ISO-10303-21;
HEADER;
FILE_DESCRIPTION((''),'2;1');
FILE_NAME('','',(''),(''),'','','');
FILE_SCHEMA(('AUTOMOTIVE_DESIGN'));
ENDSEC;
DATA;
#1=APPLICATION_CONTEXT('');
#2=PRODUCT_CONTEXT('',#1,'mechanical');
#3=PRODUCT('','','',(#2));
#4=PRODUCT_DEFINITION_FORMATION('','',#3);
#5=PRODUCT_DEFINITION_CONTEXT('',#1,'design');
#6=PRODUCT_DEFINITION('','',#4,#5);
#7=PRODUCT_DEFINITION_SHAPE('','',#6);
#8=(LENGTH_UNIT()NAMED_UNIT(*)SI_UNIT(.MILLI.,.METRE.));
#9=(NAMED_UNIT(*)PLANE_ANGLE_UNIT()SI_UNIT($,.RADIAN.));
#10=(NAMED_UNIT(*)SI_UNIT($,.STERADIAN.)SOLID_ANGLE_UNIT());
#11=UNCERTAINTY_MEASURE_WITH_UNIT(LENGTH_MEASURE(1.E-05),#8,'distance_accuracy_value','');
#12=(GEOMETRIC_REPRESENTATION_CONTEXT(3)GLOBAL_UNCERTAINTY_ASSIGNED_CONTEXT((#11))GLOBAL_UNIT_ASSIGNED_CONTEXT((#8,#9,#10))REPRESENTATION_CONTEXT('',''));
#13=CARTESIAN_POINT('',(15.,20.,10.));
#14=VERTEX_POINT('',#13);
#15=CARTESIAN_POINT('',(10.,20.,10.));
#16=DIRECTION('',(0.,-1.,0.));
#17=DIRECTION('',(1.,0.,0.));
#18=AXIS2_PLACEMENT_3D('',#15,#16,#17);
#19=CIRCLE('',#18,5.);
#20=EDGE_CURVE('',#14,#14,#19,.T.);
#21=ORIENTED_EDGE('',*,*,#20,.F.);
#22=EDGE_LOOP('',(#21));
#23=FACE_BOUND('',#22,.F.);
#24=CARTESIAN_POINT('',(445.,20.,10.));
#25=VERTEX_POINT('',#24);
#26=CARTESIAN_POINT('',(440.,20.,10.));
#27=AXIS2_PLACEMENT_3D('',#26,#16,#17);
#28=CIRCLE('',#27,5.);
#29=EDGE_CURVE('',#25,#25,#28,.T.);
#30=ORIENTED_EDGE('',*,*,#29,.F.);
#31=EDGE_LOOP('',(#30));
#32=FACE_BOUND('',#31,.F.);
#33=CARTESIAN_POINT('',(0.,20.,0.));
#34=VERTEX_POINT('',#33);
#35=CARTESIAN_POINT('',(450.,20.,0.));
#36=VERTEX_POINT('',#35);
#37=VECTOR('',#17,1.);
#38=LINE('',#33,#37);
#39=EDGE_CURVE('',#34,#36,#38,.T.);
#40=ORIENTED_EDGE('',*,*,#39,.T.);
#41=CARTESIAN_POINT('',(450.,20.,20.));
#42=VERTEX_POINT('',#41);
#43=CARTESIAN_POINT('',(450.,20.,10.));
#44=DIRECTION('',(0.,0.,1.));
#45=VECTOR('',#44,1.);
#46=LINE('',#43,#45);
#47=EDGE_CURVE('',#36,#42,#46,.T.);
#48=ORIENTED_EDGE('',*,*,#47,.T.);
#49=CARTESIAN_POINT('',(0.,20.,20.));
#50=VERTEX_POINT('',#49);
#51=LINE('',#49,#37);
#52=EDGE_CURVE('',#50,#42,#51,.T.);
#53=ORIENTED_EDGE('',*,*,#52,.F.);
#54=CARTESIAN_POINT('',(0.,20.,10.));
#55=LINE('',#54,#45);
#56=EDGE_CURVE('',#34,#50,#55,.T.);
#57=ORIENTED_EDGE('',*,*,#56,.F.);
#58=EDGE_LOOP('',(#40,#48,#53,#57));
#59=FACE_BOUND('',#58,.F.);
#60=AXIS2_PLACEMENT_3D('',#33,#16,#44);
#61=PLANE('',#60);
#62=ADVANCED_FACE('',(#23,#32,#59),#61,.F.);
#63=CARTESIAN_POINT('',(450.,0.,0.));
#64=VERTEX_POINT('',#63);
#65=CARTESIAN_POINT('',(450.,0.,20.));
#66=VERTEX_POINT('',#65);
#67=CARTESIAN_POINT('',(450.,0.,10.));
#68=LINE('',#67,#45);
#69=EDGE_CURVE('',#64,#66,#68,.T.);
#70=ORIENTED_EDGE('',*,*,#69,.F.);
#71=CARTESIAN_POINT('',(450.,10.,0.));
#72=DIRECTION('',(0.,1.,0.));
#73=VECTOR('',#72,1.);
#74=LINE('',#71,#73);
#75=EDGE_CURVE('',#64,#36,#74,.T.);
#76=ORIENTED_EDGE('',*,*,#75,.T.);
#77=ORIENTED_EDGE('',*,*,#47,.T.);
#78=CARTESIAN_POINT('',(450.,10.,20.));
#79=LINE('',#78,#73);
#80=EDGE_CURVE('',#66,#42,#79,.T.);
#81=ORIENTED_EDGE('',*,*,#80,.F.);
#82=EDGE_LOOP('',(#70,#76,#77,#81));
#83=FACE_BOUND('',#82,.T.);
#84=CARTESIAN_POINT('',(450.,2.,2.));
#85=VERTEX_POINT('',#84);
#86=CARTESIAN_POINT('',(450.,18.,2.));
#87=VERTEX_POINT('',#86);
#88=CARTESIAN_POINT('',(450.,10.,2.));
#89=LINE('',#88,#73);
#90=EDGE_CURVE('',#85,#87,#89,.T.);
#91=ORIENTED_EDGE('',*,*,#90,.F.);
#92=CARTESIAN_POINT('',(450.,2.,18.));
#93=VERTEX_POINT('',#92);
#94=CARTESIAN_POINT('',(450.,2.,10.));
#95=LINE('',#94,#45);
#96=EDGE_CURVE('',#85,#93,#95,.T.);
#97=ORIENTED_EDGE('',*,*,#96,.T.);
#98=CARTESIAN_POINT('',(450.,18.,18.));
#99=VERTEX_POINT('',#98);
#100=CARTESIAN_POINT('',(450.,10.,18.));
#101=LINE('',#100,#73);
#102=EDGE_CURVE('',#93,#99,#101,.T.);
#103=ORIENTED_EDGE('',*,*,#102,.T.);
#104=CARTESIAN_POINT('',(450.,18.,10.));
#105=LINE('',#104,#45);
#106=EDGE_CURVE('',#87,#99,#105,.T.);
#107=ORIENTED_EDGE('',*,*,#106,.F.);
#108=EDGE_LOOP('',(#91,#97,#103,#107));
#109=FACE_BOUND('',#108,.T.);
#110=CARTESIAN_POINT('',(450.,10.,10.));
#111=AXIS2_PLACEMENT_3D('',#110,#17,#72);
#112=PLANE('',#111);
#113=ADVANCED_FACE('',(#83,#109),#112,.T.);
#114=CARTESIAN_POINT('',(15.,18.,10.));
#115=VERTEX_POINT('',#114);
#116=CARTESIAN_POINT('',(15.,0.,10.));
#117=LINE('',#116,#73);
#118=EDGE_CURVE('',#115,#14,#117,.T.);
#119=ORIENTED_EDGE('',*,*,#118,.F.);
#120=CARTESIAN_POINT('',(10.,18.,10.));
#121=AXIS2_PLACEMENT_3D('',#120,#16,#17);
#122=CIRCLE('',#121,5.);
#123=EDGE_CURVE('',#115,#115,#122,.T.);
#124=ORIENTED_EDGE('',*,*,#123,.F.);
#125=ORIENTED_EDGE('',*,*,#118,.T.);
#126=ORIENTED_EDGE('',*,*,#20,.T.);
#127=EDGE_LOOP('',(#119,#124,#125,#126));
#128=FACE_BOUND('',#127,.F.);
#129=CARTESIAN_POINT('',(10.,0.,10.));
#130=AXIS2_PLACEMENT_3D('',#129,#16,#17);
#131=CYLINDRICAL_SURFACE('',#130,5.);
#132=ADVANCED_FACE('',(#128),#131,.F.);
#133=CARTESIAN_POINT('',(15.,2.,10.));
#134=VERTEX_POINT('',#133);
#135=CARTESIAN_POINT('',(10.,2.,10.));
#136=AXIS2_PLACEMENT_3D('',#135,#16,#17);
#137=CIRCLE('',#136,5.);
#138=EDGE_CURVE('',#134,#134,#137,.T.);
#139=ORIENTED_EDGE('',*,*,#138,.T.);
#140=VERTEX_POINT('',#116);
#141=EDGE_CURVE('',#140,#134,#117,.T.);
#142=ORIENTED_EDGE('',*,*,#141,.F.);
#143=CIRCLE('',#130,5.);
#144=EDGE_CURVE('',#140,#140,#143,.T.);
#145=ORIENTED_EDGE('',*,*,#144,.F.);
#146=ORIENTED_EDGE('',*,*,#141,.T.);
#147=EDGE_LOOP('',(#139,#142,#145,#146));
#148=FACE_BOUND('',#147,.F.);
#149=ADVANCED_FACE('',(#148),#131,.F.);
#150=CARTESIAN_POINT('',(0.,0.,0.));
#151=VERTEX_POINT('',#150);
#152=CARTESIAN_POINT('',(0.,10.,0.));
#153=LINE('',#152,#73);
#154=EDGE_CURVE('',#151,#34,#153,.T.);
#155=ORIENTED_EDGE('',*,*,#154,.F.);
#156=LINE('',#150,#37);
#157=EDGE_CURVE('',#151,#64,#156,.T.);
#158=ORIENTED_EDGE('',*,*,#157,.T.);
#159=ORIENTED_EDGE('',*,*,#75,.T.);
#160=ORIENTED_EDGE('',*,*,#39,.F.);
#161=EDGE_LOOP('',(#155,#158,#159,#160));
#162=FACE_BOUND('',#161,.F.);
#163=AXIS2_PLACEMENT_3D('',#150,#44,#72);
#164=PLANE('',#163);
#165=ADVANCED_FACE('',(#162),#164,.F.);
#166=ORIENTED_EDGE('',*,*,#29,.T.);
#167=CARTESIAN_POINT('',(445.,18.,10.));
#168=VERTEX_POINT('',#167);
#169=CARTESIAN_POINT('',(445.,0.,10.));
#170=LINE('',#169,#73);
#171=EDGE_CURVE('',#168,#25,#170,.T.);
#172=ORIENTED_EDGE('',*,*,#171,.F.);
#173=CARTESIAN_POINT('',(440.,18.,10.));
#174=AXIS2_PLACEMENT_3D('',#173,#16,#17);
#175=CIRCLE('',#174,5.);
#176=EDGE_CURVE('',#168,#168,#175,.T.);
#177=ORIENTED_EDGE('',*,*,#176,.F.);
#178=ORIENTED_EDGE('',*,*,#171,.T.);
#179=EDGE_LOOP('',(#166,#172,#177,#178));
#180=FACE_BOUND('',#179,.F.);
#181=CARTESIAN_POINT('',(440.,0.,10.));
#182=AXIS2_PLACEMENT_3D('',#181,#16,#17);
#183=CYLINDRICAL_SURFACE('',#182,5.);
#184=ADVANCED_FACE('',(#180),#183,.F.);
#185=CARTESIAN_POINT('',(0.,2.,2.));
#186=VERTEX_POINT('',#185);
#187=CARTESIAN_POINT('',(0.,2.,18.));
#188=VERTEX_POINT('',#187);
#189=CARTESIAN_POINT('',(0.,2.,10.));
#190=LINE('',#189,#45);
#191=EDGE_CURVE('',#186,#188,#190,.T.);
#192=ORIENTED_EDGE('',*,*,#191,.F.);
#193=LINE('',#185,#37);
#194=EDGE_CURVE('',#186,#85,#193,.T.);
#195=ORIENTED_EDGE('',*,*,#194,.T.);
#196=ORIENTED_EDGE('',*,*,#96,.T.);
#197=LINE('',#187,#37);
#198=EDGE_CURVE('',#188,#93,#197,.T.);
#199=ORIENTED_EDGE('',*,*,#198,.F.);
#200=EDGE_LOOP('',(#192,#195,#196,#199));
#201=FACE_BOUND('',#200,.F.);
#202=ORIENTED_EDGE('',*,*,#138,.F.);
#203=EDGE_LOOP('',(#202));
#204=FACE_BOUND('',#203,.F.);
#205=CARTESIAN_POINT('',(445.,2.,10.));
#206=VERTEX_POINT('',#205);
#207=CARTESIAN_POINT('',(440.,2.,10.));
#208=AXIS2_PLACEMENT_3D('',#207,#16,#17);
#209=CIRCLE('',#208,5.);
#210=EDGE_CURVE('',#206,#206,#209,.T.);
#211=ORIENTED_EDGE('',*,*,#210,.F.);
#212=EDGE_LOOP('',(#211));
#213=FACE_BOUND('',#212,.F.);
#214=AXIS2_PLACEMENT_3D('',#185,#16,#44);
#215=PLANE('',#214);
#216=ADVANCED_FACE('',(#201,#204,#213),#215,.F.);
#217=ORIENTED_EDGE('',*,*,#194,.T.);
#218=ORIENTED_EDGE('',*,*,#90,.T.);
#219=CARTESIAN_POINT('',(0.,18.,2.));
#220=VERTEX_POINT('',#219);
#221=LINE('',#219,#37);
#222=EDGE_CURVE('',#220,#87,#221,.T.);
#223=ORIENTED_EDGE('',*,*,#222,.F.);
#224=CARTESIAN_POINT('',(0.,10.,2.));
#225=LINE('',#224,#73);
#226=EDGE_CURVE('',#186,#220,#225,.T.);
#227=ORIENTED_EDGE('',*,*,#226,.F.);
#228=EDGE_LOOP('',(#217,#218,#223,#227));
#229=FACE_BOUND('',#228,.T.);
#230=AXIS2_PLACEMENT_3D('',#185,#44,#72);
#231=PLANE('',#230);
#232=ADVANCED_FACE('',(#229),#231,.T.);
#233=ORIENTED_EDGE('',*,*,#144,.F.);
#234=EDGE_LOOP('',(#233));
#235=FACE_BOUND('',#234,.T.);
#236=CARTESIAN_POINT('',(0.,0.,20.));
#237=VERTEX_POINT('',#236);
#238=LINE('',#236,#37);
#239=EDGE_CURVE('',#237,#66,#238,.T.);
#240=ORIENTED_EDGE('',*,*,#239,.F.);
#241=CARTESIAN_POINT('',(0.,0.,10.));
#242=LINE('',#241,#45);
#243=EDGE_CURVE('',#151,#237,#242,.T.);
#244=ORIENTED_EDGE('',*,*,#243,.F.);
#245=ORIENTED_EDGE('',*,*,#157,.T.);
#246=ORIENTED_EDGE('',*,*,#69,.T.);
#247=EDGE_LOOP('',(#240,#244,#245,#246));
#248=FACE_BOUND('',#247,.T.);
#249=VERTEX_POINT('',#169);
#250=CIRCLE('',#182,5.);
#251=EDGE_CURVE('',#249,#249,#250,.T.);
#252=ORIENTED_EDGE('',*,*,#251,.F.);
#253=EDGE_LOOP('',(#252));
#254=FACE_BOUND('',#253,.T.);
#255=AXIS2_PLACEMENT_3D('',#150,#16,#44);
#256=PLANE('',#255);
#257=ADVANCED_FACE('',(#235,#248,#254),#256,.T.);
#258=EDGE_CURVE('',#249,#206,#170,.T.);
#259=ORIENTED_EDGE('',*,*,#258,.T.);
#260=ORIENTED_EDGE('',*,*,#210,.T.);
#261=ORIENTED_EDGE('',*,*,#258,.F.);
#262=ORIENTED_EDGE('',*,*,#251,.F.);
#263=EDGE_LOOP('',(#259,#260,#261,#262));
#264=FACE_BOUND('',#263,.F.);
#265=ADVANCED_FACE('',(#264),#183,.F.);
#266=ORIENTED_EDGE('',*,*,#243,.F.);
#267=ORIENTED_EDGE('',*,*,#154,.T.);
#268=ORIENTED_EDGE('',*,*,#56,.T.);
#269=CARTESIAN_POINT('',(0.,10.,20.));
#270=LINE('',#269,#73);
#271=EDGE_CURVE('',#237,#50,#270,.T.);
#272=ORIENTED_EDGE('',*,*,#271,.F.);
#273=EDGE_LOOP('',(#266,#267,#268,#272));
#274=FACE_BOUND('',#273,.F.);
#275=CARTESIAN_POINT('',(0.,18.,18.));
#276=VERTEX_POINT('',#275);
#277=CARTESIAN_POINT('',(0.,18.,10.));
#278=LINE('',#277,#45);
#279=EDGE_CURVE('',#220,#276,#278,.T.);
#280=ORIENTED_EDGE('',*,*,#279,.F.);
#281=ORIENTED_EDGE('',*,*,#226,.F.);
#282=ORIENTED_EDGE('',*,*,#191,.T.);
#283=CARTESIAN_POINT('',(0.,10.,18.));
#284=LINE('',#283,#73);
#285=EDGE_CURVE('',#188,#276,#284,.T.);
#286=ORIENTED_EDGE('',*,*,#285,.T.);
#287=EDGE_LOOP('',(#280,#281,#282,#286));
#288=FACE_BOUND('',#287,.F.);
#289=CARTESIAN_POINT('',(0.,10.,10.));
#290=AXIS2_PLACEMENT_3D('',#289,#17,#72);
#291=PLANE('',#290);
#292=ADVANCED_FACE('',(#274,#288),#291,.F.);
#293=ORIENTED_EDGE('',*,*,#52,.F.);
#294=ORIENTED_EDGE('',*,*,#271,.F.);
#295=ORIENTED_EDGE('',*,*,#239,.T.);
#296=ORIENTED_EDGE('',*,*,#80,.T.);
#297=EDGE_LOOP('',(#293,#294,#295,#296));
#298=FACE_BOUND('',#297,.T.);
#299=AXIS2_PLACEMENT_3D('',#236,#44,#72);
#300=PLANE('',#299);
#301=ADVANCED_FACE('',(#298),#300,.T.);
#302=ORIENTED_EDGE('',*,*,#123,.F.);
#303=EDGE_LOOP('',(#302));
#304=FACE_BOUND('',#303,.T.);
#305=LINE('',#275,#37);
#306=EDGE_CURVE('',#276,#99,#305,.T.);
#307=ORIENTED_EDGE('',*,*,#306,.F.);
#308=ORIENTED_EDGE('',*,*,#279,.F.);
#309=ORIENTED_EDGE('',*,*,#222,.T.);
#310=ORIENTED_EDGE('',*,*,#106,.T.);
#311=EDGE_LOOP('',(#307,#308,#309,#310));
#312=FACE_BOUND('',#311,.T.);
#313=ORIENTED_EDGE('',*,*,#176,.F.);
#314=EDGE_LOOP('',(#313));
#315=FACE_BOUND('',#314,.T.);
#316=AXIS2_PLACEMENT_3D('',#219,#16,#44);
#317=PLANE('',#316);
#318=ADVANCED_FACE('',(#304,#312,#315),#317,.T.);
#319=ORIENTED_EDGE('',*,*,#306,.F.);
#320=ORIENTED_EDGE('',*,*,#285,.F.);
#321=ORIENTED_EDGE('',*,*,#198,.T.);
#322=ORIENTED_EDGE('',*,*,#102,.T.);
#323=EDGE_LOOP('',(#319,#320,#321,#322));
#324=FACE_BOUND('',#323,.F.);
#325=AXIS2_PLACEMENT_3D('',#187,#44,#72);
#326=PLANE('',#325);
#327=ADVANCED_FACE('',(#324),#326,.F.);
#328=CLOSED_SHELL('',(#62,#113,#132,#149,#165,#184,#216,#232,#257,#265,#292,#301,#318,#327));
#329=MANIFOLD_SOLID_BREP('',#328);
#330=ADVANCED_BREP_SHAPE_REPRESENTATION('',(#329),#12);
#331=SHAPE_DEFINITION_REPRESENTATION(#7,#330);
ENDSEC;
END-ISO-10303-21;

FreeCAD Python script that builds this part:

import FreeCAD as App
import Part
import Sketcher
from FreeCAD import Vector
Q = App.Units.Quantity

doc = App.newDocument("Part")
body = doc.addObject("PartDesign::Body", "Body")

# Sketch on YZ plane
sketch1 = doc.addObject("Sketcher::SketchObject", "Sketch")
body.addObject(sketch1)
sketch1.AttachmentSupport = (doc.YZ_Plane, [""])
sketch1.MapMode = "FlatFace"
sketch1.addGeometry(Part.LineSegment(Vector(0, 20, 0), Vector(0, 0, 0)), False)
sketch1.addGeometry(Part.LineSegment(Vector(0, 0, 0), Vector(20, 0, 0)), False)
sketch1.addGeometry(Part.LineSegment(Vector(20, 0, 0), Vector(20, 20, 0)), False)
sketch1.addGeometry(Part.LineSegment(Vector(20, 20, 0), Vector(0, 20, 0)), False)
sketch1.addGeometry(Part.LineSegment(Vector(18, 2, 0), Vector(2, 2, 0)), False)
sketch1.addGeometry(Part.LineSegment(Vector(2, 2, 0), Vector(2, 18, 0)), False)
sketch1.addGeometry(Part.LineSegment(Vector(2, 18, 0), Vector(18, 18, 0)), False)
sketch1.addGeometry(Part.LineSegment(Vector(18, 18, 0), Vector(18, 2, 0)), False)
sketch1.addConstraint(Sketcher.Constraint("Coincident", 0, 2, 1, 1))
sketch1.addConstraint(Sketcher.Constraint("Coincident", 1, 2, 2, 1))
sketch1.addConstraint(Sketcher.Constraint("Coincident", 2, 2, 3, 1))
sketch1.addConstraint(Sketcher.Constraint("Coincident", 3, 2, 0, 1))
sketch1.addConstraint(Sketcher.Constraint("Coincident", 4, 2, 5, 1))
sketch1.addConstraint(Sketcher.Constraint("Coincident", 5, 2, 6, 1))
sketch1.addConstraint(Sketcher.Constraint("Coincident", 6, 2, 7, 1))
sketch1.addConstraint(Sketcher.Constraint("Coincident", 7, 2, 4, 1))
sketch1.addConstraint(Sketcher.Constraint("Vertical", 0))
sketch1.addConstraint(Sketcher.Constraint("Horizontal", 1))
sketch1.addConstraint(Sketcher.Constraint("Vertical", 2))
sketch1.addConstraint(Sketcher.Constraint("Horizontal", 3))
sketch1.addConstraint(Sketcher.Constraint("Horizontal", 4))
sketch1.addConstraint(Sketcher.Constraint("Vertical", 5))
sketch1.addConstraint(Sketcher.Constraint("Horizontal", 6))
sketch1.addConstraint(Sketcher.Constraint("Vertical", 7))
sketch1.addConstraint(Sketcher.Constraint("Coincident", 0, 2, -1, 1))
sketch1.addConstraint(Sketcher.Constraint("Equal", 3, 0))
sketch1.addConstraint(Sketcher.Constraint("Equal", 6, 5))
sketch1.addConstraint(Sketcher.Constraint("DistanceX", 1, 1, 1, 2, Q("20 mm")))
sketch1.addConstraint(Sketcher.Constraint("DistanceX", 4, 2, 4, 1, Q("16 mm")))
sketch1.addConstraint(Sketcher.Constraint("DistanceX", -1, 1, 4, 2, Q("2 mm")))
sketch1.addConstraint(Sketcher.Constraint("DistanceY", -1, 1, 4, 2, Q("2 mm")))
pad1 = doc.addObject("PartDesign::Pad", "Pad")
body.addObject(pad1)
pad1.Profile = sketch1
pad1.Length = 450

# Sketch on XZ plane
sketch2 = doc.addObject("Sketcher::SketchObject", "Sketch001")
body.addObject(sketch2)
sketch2.AttachmentSupport = (doc.XZ_Plane, [""])
sketch2.MapMode = "FlatFace"
sketch2.addGeometry(Part.Circle(Vector(440, 10, 0), Vector(0, 0, 1), 5), False)
sketch2.addConstraint(Sketcher.Constraint("Diameter", 0, Q("10 mm")))
sketch2.addConstraint(Sketcher.Constraint("DistanceX", -1, 1, 0, 3, Q("440 mm")))
sketch2.addConstraint(Sketcher.Constraint("DistanceY", -1, 1, 0, 3, Q("10 mm")))
pocket1 = doc.addObject("PartDesign::Pocket", "Pocket")
body.addObject(pocket1)
pocket1.Profile = sketch2
pocket1.Type = "ThroughAll"

# Sketch on XZ plane
sketch3 = doc.addObject("Sketcher::SketchObject", "Sketch002")
body.addObject(sketch3)
sketch3.AttachmentSupport = (doc.XZ_Plane, [""])
sketch3.MapMode = "FlatFace"
sketch3.addGeometry(Part.Circle(Vector(10, 10, 0), Vector(0, 0, 1), 5), False)
sketch3.addConstraint(Sketcher.Constraint("Diameter", 0, Q("10 mm")))
sketch3.addConstraint(Sketcher.Constraint("DistanceX", -1, 1, 0, 3, Q("10 mm")))
sketch3.addConstraint(Sketcher.Constraint("DistanceY", -1, 1, 0, 3, Q("10 mm")))
pocket2 = doc.addObject("PartDesign::Pocket", "Pocket001")
body.addObject(pocket2)
pocket2.Profile = sketch3
pocket2.Type = "ThroughAll"

doc.recompute()
